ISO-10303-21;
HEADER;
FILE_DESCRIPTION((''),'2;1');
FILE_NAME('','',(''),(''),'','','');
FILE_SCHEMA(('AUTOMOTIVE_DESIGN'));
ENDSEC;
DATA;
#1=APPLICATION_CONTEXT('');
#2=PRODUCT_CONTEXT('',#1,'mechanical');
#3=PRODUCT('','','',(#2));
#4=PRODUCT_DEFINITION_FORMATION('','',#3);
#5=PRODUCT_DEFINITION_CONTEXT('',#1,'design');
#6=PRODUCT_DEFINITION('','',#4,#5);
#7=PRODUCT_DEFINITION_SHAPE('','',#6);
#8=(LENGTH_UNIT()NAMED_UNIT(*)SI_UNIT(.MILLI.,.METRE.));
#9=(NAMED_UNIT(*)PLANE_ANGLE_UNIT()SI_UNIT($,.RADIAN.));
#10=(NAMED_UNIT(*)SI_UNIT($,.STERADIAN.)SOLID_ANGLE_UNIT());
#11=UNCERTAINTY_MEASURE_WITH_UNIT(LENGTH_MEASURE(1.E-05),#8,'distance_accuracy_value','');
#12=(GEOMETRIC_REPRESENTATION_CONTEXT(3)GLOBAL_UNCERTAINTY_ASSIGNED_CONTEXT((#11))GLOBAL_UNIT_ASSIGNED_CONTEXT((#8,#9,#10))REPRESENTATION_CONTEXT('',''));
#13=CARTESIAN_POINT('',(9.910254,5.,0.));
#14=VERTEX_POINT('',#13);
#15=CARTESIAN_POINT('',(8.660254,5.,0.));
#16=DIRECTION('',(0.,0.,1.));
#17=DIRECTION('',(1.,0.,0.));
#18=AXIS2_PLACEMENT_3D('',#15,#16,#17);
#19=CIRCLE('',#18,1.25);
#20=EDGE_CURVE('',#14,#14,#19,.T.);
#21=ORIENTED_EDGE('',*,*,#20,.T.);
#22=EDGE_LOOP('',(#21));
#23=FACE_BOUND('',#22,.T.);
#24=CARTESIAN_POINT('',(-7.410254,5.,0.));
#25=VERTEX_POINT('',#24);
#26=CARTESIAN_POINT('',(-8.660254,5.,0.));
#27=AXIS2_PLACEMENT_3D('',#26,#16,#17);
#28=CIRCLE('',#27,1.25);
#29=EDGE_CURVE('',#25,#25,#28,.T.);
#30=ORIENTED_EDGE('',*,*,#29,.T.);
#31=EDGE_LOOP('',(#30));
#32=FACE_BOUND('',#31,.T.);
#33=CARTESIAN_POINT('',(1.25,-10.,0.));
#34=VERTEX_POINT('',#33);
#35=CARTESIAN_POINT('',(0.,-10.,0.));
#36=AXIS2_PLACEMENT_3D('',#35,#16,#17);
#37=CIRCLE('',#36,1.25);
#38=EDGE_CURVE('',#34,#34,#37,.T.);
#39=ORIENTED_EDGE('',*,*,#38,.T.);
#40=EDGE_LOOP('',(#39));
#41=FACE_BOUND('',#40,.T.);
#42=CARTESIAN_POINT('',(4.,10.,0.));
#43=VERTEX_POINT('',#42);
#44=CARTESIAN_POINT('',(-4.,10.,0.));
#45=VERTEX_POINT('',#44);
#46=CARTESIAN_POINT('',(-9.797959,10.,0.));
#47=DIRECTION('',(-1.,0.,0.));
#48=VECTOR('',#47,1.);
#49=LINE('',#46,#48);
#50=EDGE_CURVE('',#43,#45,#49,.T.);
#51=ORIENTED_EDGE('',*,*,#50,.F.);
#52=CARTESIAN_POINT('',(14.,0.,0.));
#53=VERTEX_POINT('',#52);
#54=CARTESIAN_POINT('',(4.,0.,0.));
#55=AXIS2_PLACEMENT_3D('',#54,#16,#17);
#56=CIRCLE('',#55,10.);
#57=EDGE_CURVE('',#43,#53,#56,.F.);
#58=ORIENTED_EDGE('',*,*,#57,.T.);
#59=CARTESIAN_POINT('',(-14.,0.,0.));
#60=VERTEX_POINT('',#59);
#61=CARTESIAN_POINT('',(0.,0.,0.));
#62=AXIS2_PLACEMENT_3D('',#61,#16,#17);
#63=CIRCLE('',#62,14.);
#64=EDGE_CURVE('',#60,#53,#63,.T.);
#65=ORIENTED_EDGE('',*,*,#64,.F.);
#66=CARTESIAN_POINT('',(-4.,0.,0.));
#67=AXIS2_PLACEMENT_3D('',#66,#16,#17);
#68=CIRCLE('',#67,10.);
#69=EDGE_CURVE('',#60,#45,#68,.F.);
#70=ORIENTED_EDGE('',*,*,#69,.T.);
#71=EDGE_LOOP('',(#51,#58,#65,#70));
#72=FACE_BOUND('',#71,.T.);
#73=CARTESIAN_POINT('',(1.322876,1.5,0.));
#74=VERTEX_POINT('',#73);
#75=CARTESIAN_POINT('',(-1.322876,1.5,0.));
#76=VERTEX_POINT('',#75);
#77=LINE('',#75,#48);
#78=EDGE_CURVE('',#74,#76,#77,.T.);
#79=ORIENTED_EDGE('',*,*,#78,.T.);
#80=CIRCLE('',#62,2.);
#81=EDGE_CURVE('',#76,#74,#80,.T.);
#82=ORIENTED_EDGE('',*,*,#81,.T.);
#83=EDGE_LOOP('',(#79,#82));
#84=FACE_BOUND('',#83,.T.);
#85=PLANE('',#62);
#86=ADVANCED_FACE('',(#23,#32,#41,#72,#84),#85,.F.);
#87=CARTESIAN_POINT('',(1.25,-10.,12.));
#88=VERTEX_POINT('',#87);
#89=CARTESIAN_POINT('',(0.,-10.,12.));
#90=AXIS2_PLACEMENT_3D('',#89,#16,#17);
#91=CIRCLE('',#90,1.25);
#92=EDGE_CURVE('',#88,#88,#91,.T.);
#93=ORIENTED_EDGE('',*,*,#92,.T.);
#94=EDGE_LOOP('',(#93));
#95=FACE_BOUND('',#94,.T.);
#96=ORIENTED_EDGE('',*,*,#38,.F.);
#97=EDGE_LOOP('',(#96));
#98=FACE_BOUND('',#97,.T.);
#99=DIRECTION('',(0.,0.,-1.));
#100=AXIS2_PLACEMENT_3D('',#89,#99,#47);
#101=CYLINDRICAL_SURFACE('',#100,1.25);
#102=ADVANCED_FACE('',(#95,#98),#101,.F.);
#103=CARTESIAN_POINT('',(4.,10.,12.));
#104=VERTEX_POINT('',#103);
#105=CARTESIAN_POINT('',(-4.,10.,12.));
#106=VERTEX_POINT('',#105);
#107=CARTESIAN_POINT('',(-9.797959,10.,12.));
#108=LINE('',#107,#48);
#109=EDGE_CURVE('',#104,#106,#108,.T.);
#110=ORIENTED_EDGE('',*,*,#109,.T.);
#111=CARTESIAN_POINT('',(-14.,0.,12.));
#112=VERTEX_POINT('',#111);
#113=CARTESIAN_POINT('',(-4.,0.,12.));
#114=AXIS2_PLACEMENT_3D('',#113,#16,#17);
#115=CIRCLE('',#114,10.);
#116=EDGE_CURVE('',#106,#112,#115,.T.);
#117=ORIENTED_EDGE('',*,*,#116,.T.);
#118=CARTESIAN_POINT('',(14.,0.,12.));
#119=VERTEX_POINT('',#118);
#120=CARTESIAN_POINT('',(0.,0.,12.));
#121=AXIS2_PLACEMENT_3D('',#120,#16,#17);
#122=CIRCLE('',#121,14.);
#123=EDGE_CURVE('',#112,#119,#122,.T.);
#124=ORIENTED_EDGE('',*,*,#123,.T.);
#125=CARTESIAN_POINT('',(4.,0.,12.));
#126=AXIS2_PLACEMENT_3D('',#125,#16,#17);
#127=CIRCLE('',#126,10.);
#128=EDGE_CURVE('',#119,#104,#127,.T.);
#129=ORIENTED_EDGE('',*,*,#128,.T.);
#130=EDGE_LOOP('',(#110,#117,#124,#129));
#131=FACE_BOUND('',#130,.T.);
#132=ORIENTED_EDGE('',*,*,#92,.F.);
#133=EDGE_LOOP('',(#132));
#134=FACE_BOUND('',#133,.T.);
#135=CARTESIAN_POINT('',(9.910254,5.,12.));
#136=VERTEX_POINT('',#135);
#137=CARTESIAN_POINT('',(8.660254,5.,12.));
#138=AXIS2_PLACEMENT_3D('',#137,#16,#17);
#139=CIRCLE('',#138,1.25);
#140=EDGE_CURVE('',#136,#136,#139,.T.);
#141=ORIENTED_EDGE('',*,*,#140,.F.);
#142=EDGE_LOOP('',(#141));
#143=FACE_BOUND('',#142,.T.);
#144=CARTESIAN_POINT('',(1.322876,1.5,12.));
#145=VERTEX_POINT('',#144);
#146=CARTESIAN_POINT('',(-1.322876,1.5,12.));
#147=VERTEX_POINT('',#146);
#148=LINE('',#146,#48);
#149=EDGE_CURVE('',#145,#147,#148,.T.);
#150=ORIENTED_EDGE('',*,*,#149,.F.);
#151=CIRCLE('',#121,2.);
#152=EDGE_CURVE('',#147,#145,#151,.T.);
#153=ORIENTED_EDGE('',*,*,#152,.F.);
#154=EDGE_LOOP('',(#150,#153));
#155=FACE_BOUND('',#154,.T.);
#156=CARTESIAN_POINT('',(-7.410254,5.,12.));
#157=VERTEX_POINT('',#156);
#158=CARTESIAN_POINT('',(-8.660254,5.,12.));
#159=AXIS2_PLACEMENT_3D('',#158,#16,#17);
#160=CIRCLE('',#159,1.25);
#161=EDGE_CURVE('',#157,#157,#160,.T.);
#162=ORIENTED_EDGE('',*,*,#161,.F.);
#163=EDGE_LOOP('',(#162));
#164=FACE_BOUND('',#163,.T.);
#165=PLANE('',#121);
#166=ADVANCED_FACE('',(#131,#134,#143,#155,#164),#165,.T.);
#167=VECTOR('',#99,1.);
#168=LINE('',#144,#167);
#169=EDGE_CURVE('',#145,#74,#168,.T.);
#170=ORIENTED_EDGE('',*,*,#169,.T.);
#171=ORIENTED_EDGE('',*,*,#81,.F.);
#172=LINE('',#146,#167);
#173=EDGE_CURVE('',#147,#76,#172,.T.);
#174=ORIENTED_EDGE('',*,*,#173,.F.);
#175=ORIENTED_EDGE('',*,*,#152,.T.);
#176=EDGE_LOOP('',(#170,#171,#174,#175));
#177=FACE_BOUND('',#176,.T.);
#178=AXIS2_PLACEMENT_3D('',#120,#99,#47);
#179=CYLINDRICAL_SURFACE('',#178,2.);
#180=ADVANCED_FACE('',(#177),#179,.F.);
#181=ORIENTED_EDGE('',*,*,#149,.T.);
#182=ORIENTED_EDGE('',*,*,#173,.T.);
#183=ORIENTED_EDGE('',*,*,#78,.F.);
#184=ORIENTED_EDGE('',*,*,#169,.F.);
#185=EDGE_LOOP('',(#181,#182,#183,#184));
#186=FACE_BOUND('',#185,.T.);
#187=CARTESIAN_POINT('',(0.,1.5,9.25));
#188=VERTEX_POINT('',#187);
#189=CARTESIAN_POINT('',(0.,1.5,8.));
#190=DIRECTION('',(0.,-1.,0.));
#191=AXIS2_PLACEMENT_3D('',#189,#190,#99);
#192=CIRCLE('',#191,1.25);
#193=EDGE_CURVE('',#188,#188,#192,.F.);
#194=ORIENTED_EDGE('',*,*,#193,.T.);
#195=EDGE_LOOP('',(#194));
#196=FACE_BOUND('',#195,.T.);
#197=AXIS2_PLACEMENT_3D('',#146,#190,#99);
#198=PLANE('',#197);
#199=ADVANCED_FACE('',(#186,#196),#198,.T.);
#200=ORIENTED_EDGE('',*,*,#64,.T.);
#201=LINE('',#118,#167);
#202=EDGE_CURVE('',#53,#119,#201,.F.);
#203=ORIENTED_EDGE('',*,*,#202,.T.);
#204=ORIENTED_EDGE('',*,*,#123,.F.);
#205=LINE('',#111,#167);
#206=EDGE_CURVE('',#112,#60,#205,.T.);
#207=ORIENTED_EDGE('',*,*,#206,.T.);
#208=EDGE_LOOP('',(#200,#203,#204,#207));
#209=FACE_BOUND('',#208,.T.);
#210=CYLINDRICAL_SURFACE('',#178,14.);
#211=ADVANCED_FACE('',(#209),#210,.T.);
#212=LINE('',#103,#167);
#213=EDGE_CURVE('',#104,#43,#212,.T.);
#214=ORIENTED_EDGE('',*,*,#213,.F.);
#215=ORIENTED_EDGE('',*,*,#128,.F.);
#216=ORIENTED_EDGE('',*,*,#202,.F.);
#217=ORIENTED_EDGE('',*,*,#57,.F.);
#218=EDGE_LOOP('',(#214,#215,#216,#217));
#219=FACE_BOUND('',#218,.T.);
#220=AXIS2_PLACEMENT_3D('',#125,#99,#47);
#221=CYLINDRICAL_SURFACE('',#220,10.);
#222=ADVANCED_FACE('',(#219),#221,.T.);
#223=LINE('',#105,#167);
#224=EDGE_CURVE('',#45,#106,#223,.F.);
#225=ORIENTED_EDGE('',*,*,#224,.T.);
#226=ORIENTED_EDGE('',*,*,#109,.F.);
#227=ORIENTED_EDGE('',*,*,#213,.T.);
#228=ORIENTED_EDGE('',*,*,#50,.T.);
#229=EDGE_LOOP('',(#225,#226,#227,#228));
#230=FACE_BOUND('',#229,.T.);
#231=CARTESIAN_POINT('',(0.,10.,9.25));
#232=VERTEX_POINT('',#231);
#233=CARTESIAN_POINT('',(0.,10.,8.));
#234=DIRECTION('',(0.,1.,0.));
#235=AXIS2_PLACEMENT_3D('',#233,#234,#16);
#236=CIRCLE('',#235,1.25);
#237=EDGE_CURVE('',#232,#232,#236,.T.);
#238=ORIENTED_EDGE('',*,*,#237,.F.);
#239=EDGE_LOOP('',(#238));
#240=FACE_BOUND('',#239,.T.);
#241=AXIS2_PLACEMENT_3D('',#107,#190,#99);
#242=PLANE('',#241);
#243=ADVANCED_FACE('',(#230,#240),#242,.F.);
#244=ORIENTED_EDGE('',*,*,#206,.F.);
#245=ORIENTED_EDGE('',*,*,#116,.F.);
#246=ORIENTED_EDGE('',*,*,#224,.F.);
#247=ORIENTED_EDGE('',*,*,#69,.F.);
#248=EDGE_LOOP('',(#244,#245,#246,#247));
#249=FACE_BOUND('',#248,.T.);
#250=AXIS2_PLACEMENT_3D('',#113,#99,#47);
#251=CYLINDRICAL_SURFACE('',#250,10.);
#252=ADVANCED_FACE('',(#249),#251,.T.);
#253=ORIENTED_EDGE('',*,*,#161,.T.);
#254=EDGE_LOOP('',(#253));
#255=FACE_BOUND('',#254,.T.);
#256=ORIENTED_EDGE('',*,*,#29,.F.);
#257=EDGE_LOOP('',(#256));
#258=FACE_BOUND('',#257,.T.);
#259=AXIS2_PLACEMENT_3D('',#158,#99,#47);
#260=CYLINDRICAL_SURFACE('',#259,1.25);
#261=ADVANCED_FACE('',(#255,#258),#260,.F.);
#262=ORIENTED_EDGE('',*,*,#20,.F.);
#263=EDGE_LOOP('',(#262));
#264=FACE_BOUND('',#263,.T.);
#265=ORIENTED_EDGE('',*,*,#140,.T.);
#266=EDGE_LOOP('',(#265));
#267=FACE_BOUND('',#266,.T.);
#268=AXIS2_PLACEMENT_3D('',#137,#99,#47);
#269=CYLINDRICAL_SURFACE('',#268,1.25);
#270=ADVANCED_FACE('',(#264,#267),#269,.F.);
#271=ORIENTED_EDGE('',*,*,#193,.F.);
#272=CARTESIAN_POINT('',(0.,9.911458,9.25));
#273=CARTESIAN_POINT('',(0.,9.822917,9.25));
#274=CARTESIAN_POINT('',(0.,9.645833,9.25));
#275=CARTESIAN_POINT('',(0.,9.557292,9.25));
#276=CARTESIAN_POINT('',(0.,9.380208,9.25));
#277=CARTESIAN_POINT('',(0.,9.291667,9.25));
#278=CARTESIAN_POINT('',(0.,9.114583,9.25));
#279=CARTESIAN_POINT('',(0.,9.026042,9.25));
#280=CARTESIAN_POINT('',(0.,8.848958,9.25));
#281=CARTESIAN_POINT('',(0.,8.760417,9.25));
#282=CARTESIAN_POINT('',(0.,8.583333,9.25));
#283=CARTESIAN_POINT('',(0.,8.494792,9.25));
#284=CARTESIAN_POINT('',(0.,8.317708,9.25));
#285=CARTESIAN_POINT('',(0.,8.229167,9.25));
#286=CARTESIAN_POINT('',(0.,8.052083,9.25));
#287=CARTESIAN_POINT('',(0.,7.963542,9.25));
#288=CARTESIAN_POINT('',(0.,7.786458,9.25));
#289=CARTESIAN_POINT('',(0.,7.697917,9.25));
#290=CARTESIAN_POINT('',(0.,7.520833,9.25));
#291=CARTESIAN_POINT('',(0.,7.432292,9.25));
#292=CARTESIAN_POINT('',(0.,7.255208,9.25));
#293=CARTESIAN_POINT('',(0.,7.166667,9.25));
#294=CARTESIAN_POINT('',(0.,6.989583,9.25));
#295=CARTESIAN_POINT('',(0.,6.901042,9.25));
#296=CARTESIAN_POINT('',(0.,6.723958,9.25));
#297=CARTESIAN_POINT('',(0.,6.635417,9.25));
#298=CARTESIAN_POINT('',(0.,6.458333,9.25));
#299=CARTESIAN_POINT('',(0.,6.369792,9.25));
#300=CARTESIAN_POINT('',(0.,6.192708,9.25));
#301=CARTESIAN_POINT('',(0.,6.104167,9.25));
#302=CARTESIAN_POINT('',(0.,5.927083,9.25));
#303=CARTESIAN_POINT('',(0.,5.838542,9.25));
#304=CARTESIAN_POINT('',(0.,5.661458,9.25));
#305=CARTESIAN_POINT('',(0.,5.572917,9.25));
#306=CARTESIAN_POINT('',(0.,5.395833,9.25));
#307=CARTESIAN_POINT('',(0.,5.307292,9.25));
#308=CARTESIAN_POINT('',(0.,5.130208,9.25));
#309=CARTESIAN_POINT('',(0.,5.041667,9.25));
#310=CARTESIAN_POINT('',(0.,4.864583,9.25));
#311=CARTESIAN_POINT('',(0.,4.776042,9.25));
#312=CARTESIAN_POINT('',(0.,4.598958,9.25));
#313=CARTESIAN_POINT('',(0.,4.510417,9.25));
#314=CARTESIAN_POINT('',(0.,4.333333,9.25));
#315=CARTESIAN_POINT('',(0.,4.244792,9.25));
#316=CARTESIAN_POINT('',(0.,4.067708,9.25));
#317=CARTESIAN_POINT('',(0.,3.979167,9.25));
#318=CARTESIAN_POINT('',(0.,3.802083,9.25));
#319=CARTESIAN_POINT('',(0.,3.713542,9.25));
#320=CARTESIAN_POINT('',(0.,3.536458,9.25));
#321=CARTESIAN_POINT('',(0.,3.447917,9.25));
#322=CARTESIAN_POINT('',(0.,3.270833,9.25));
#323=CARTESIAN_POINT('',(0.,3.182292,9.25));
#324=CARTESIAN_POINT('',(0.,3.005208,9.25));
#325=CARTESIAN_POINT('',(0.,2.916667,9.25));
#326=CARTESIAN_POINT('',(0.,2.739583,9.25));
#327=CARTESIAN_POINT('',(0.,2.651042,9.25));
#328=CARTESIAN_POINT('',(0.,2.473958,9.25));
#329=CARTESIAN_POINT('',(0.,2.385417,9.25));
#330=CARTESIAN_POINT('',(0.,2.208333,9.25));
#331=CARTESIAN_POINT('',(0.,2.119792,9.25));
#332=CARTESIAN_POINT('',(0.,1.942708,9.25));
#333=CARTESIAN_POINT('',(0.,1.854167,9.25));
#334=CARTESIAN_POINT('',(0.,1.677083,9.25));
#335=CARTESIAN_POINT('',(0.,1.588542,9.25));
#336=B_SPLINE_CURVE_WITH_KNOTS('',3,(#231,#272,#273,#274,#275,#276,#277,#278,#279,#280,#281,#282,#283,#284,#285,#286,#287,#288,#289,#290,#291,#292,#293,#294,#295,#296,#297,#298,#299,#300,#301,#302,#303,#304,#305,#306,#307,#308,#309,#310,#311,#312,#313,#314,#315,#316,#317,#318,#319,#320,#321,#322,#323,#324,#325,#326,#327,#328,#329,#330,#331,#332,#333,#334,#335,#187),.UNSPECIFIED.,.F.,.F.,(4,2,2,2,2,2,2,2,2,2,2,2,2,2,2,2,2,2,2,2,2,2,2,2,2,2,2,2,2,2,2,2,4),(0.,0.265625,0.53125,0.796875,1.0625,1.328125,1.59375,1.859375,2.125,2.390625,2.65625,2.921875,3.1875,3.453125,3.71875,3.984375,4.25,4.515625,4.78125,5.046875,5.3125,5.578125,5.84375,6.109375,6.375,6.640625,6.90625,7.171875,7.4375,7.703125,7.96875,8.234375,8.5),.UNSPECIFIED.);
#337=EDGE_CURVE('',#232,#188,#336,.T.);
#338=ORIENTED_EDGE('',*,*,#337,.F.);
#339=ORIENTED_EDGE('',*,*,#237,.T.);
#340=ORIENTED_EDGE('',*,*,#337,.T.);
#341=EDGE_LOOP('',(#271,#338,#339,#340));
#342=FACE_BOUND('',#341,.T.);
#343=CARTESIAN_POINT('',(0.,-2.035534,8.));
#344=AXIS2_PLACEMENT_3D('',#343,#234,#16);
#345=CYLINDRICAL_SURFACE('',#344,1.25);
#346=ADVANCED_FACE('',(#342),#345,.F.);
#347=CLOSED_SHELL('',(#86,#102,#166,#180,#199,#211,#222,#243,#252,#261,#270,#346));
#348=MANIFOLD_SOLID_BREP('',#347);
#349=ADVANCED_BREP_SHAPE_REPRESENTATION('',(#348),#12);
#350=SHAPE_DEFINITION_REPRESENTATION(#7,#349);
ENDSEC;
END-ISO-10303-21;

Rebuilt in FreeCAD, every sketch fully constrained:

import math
import FreeCAD as App
import Part
import Sketcher
Q = App.Units.Quantity


def edges_at(feature, points):
    """Names of the edges that pass closest to the given points."""
    edges = feature.Shape.Edges
    near = lambda p: min(range(len(edges)), key=lambda i: edges[i].distToShape(Part.Vertex(*p))[0])
    return sorted({f"Edge{near(p) + 1}" for p in points})

doc = App.newDocument("Part")
body = doc.addObject("PartDesign::Body", "Body")

sketch1 = doc.addObject("Sketcher::SketchObject", "Sketch")
body.addObject(sketch1)
sketch1.AttachmentSupport = (doc.XY_Plane, [""])
sketch1.MapMode = "FlatFace"
sketch1.addGeometry(Part.LineSegment(App.Vector(9.8, 10, 0), App.Vector(-9.8, 10, 0)), False)
sketch1.addGeometry(Part.ArcOfCircle(Part.Circle(App.Vector(0, 0, 0), App.Vector(0, 0, 1), 14), math.radians(134), math.radians(406)), False)
sketch1.addGeometry(Part.Circle(App.Vector(0, -10, 0), App.Vector(0, 0, 1), 1.2), False)
sketch1.addGeometry(Part.Circle(App.Vector(8.7, 5, 0), App.Vector(0, 0, 1), 1.2), False)
sketch1.addGeometry(Part.LineSegment(App.Vector(-1.3, 1.5, 0), App.Vector(1.3, 1.5, 0)), False)
sketch1.addGeometry(Part.ArcOfCircle(Part.Circle(App.Vector(0, 0, 0), App.Vector(0, 0, 1), 2), math.radians(131), math.radians(409)), False)
sketch1.addGeometry(Part.Circle(App.Vector(-8.7, 5, 0), App.Vector(0, 0, 1), 1.2), False)
sketch1.addConstraint(Sketcher.Constraint("Coincident", 0, 1, 1, 2))
sketch1.addConstraint(Sketcher.Constraint("Coincident", 1, 1, 0, 2))
sketch1.addConstraint(Sketcher.Constraint("Coincident", 4, 1, 5, 1))
sketch1.addConstraint(Sketcher.Constraint("Coincident", 5, 2, 4, 2))
sketch1.addConstraint(Sketcher.Constraint("Horizontal", 0))
sketch1.addConstraint(Sketcher.Constraint("Horizontal", 4))
sketch1.addConstraint(Sketcher.Constraint("Coincident", 1, 3, -1, 1))
sketch1.addConstraint(Sketcher.Constraint("Coincident", 5, 3, -1, 1))
sketch1.addConstraint(Sketcher.Constraint("Equal", 2, 3))
sketch1.addConstraint(Sketcher.Constraint("Equal", 3, 6))
sketch1.addConstraint(Sketcher.Constraint("Symmetric", 3, 3, 6, 3, -2))
sketch1.addConstraint(Sketcher.Constraint("PointOnObject", 2, 3, -2))
sketch1.addConstraint(Sketcher.Constraint("Radius", 1, Q("14 mm")))
sketch1.addConstraint(Sketcher.Constraint("Radius", 5, Q("2 mm")))
sketch1.addConstraint(Sketcher.Constraint("Diameter", 2, Q("2.5 mm")))
sketch1.addConstraint(Sketcher.Constraint("DistanceY", 2, 3, -1, 1, Q("10 mm")))
sketch1.addConstraint(Sketcher.Constraint("DistanceY", -1, 1, 3, 3, Q("5 mm")))
sketch1.addConstraint(Sketcher.Constraint("DistanceY", -1, 1, 0, 1, Q("10 mm")))
sketch1.addConstraint(Sketcher.Constraint("DistanceY", -1, 1, 4, 1, Q("1.5 mm")))
sketch1.addConstraint(Sketcher.Constraint("DistanceX", 6, 3, 3, 3, Q("17.320508 mm")))
pad1 = doc.addObject("PartDesign::Pad", "Pad")
body.addObject(pad1)
pad1.Profile = sketch1
pad1.Length = 12

sketch2 = doc.addObject("Sketcher::SketchObject", "Sketch001")
body.addObject(sketch2)
sketch2.AttachmentSupport = (doc.XZ_Plane, [""])
sketch2.MapMode = "FlatFace"
sketch2.AttachmentOffset = App.Placement(App.Vector(0, 0, -10), App.Rotation())
sketch2.addGeometry(Part.Circle(App.Vector(0, 8, 0), App.Vector(0, 0, 1), 1.2), False)
sketch2.addConstraint(Sketcher.Constraint("PointOnObject", 0, 3, -2))
sketch2.addConstraint(Sketcher.Constraint("Diameter", 0, Q("2.5 mm")))
sketch2.addConstraint(Sketcher.Constraint("DistanceY", -1, 1, 0, 3, Q("8 mm")))
pocket1 = doc.addObject("PartDesign::Pocket", "Pocket")
body.addObject(pocket1)
pocket1.Profile = sketch2
pocket1.Length = 8.5
pocket1.Reversed = True
doc.recompute()

fillet = doc.addObject("PartDesign::Fillet", "Fillet")
body.addObject(fillet)
fillet.Base = (pocket1, edges_at(pocket1, [(-9.798, 10, 6), (9.798, 10, 6)]))
fillet.Radius = 10

doc.recompute()
